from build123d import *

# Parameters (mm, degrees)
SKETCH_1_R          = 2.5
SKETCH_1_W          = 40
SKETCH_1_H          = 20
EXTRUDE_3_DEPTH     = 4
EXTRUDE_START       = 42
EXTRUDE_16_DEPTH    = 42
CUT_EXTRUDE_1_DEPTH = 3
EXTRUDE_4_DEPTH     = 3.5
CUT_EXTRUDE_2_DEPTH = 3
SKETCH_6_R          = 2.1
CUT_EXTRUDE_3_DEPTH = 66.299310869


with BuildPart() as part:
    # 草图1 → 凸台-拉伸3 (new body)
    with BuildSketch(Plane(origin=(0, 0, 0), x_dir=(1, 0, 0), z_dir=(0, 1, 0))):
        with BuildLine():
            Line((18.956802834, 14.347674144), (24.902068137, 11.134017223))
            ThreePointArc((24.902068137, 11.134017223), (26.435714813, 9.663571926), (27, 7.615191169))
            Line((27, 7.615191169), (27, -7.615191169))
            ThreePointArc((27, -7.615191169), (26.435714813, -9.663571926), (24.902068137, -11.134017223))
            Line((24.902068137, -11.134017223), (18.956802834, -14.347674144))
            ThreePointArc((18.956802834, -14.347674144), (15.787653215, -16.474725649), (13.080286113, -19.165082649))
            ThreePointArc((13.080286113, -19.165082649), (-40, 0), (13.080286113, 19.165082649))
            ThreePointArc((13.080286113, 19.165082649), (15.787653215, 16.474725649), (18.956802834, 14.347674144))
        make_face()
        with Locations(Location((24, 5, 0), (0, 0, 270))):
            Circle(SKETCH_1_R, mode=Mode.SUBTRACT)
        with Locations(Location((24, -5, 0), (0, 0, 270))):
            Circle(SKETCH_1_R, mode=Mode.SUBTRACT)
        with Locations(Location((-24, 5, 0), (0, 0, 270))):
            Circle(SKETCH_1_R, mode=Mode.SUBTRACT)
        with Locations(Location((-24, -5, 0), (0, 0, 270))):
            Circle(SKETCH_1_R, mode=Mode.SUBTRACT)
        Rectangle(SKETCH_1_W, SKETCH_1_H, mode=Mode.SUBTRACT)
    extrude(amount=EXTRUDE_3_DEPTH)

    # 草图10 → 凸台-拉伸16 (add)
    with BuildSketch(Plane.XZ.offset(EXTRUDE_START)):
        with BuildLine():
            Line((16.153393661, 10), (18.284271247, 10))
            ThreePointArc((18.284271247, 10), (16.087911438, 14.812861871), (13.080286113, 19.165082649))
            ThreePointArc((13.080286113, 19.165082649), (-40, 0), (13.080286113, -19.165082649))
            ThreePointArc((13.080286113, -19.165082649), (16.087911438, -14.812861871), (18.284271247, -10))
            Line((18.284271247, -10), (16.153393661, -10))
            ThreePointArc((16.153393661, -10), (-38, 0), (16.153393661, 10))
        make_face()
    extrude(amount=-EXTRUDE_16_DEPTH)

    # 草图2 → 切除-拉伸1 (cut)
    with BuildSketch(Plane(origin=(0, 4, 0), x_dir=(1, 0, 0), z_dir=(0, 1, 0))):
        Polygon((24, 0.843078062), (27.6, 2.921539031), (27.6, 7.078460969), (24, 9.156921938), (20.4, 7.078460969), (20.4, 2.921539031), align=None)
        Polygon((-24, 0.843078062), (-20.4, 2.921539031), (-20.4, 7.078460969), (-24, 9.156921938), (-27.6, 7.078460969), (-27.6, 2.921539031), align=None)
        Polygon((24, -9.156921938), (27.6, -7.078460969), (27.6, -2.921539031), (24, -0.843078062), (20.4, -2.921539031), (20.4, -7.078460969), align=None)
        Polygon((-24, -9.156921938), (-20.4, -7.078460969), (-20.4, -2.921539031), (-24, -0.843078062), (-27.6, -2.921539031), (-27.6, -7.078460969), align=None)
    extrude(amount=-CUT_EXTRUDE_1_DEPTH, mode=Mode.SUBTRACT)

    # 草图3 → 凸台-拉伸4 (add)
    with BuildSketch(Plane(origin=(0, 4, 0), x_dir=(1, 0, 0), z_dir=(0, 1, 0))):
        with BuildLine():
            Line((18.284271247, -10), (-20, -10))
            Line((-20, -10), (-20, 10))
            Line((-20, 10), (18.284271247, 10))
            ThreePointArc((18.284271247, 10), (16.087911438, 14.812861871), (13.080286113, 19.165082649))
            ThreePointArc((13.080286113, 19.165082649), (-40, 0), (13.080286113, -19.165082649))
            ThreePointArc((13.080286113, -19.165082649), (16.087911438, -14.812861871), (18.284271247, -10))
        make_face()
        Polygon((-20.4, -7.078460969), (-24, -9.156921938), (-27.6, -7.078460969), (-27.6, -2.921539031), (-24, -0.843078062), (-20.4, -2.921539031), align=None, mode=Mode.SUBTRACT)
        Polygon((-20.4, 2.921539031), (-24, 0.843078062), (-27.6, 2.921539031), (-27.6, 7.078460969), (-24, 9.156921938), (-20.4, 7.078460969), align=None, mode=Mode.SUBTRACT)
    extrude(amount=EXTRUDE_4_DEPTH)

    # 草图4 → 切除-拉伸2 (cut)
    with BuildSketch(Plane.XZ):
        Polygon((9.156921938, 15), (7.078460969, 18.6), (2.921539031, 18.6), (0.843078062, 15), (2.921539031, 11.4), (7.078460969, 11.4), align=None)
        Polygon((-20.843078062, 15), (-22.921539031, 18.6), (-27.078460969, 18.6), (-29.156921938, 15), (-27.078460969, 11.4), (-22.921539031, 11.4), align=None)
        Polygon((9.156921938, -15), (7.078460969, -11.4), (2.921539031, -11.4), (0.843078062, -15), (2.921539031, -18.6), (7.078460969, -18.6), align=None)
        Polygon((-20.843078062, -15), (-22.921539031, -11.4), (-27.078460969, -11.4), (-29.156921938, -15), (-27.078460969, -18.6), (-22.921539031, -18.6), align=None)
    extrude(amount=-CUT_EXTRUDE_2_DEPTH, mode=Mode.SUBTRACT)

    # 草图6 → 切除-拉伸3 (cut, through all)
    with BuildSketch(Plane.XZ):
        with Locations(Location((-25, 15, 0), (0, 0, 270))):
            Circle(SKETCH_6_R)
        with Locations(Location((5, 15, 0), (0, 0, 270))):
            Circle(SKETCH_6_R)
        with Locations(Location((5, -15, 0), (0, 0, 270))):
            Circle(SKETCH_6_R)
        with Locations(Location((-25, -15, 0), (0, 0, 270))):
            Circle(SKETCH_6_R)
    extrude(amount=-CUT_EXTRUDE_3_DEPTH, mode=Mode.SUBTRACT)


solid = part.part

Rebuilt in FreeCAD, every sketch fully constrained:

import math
import FreeCAD as App
import Part
import Sketcher

V = App.Vector
Q = App.Units.Quantity


def add_polygon(sketch, points):
    """Adds a closed chain of lines whose ends are joined by coincident constraints."""
    first, n = sketch.GeometryCount, len(points)
    for a, b in zip(points, points[1:] + points[:1]):
        sketch.addGeometry(Part.LineSegment(App.Vector(*a, 0), App.Vector(*b, 0)), False)
    for i in range(n):
        sketch.addConstraint(Sketcher.Constraint("Coincident", first + i, 2, first + (i + 1) % n, 1))

doc = App.newDocument("Part")
params = doc.addObject("Spreadsheet::Sheet", "Params")
for row, (alias, value) in enumerate([
    ("sketch1_diameter", "5 mm"),
    ("sketch1_radius", "20 mm"),
    ("sketch1_radius2", "30 mm"),
    ("sketch1_radius3", "4 mm"),
    ("sketch1_width", "40 mm"),
    ("pad1_length", "4 mm"),
    ("sketch2_radius", "30 mm"),
    ("sketch2_radius2", "28 mm"),
    ("pad2_length", "42 mm"),
    ("pocket1_length", "3 mm"),
    ("sketch4_radius", "30 mm"),
    ("sketch4_height", "20 mm"),
    ("pad3_length", "3.5 mm"),
    ("pocket2_length", "3 mm"),
    ("sketch6_diameter", "4.2 mm"),
], start=1):
    params.set(f"A{row}", alias)
    params.set(f"B{row}", "=" + value)
    params.setAlias(f"B{row}", alias)

body = doc.addObject("PartDesign::Body", "Body")

# Sketch on XZ plane
sketch1 = body.newObject("Sketcher::SketchObject", "Sketch")
sketch1.AttachmentSupport = (doc.getObject("XZ_Plane"), [""])
sketch1.MapMode = "FlatFace"
sketch1.addGeometry(Part.LineSegment(V(24.9, -11.1, 0), V(19, -14.3, 0)), False)  # 0
sketch1.addGeometry(Part.ArcOfCircle(Part.Circle(V(28.5, -31.9, 0), V(0, 0, 1), 20), math.radians(118), math.radians(140)), False)  # 1
sketch1.addGeometry(Part.ArcOfCircle(Part.Circle(V(-10, 0, 0), V(0, 0, 1), 30), math.radians(40), math.radians(320)), False)  # 2
sketch1.addGeometry(Part.ArcOfCircle(Part.Circle(V(28.5, 31.9, 0), V(0, 0, 1), 20), math.radians(-140), math.radians(-118)), False)  # 3
sketch1.addGeometry(Part.LineSegment(V(19, 14.3, 0), V(24.9, 11.1, 0)), False)  # 4
sketch1.addGeometry(Part.ArcOfCircle(Part.Circle(V(23, 7.6, 0), V(0, 0, 1), 4), math.radians(0), math.radians(62)), False)  # 5
sketch1.addGeometry(Part.LineSegment(V(27, 7.6, 0), V(27, -7.6, 0)), False)  # 6
sketch1.addGeometry(Part.ArcOfCircle(Part.Circle(V(23, -7.6, 0), V(0, 0, 1), 4), math.radians(-62), math.radians(0)), False)  # 7
sketch1.addGeometry(Part.Circle(V(24, 5, 0), V(0, 0, 1), 2.5), False)  # 8
sketch1.addGeometry(Part.Circle(V(-24, 5, 0), V(0, 0, 1), 2.5), False)  # 9
sketch1.addGeometry(Part.Circle(V(24, -5, 0), V(0, 0, 1), 2.5), False)  # 10
add_polygon(sketch1, [(-20, 10), (-20, -10), (20, -10), (20, 10)])  # lines 11-14
sketch1.addGeometry(Part.Circle(V(-24, -5, 0), V(0, 0, 1), 2.5), False)  # 15
sketch1.addConstraint(Sketcher.Constraint("Tangent", 0, 2, 1, 1))
sketch1.addConstraint(Sketcher.Constraint("Tangent", 1, 2, 2, 2))
sketch1.addConstraint(Sketcher.Constraint("Tangent", 2, 1, 3, 1))
sketch1.addConstraint(Sketcher.Constraint("Tangent", 3, 2, 4, 1))
sketch1.addConstraint(Sketcher.Constraint("Tangent", 4, 2, 5, 2))
sketch1.addConstraint(Sketcher.Constraint("Tangent", 5, 1, 6, 1))
sketch1.addConstraint(Sketcher.Constraint("Tangent", 6, 2, 7, 2))
sketch1.addConstraint(Sketcher.Constraint("Tangent", 7, 1, 0, 1))
sketch1.addConstraint(Sketcher.Constraint("Vertical", 6))
sketch1.addConstraint(Sketcher.Constraint("Vertical", 11))
sketch1.addConstraint(Sketcher.Constraint("Horizontal", 12))
sketch1.addConstraint(Sketcher.Constraint("Vertical", 13))
sketch1.addConstraint(Sketcher.Constraint("Horizontal", 14))
sketch1.addConstraint(Sketcher.Constraint("Equal", 1, 3))
sketch1.addConstraint(Sketcher.Constraint("Equal", 5, 7))
sketch1.addConstraint(Sketcher.Constraint("Equal", 8, 9))
sketch1.addConstraint(Sketcher.Constraint("Equal", 9, 10))
sketch1.addConstraint(Sketcher.Constraint("Equal", 10, 15))
sketch1.addConstraint(Sketcher.Constraint("Symmetric", 9, 3, 10, 3, -1, 1))
sketch1.addConstraint(Sketcher.Constraint("Symmetric", 8, 3, 15, 3, -1, 1))
sketch1.addConstraint(Sketcher.Constraint("Symmetric", 11, 2, 13, 2, -1, 1))
sketch1.addConstraint(Sketcher.Constraint("Symmetric", 8, 3, 9, 3, -2))
sketch1.addConstraint(Sketcher.Constraint("Symmetric", 1, 3, 3, 3, -1))
sketch1.addConstraint(Sketcher.Constraint("Vertical", 0, 2, 3, 2))
sketch1.addConstraint(Sketcher.Constraint("Diameter", 8, 5.0))
sketch1.addConstraint(Sketcher.Constraint("Radius", 1, 20.0))
sketch1.addConstraint(Sketcher.Constraint("Radius", 2, 30.0))
sketch1.addConstraint(Sketcher.Constraint("Radius", 5, 4.0))
sketch1.addConstraint(Sketcher.Constraint("DistanceX", 12, 1, 12, 2, 40.0))
sketch1.addConstraint(Sketcher.Constraint("DistanceY", 11, 2, 11, 1, 20.0))
sketch1.addConstraint(Sketcher.Constraint("DistanceX", 2, 3, -1, 1, 10.0))
sketch1.addConstraint(Sketcher.Constraint("DistanceX", -1, 1, 5, 3, 23.0))
sketch1.addConstraint(Sketcher.Constraint("DistanceX", -1, 1, 8, 3, 24.0))
sketch1.addConstraint(Sketcher.Constraint("DistanceY", -1, 1, 8, 3, 5.0))
sketch1.addConstraint(Sketcher.Constraint("DistanceY", 6, 2, 6, 1, 15.230382))
sketch1.addConstraint(Sketcher.Constraint("DistanceX", -1, 1, 4, 2, 24.902068))
sketch1.setExpression("Constraints[28]", "Params.sketch1_diameter")
sketch1.setExpression("Constraints[29]", "Params.sketch1_radius")
sketch1.setExpression("Constraints[30]", "Params.sketch1_radius2")
sketch1.setExpression("Constraints[31]", "Params.sketch1_radius3")
sketch1.setExpression("Constraints[32]", "Params.sketch1_width")
pad1 = body.newObject("PartDesign::Pad", "Pad")
pad1.Profile = sketch1
pad1.setExpression("Length", "Params.pad1_length")
pad1.Reversed = True

# Sketch on XZ plane
sketch2 = body.newObject("Sketcher::SketchObject", "Sketch001")
sketch2.AttachmentSupport = (doc.getObject("XZ_Plane"), [""])
sketch2.MapMode = "FlatFace"
sketch2.AttachmentOffset = App.Placement(V(0, 0, 42), App.Rotation())
sketch2.addGeometry(Part.LineSegment(V(16.2, 10, 0), V(18.3, 10, 0)), False)
sketch2.addGeometry(Part.ArcOfCircle(Part.Circle(V(-10, 0, 0), V(0, 0, 1), 30), math.radians(19), math.radians(40)), False)
sketch2.addGeometry(Part.ArcOfCircle(Part.Circle(V(-10, 0, 0), V(0, 0, 1), 30), math.radians(40), math.radians(320)), False)
sketch2.addGeometry(Part.ArcOfCircle(Part.Circle(V(-10, 0, 0), V(0, 0, 1), 30), math.radians(-40), math.radians(-19)), False)
sketch2.addGeometry(Part.LineSegment(V(18.3, -10, 0), V(16.2, -10, 0)), False)
sketch2.addGeometry(Part.ArcOfCircle(Part.Circle(V(-10, 0, 0), V(0, 0, 1), 28), math.radians(21), math.radians(339)), False)
sketch2.addConstraint(Sketcher.Constraint("Coincident", 0, 2, 1, 1))
sketch2.addConstraint(Sketcher.Constraint("Tangent", 1, 2, 2, 1))
sketch2.addConstraint(Sketcher.Constraint("Tangent", 2, 2, 3, 1))
sketch2.addConstraint(Sketcher.Constraint("Coincident", 3, 2, 4, 1))
sketch2.addConstraint(Sketcher.Constraint("Coincident", 4, 2, 5, 2))
sketch2.addConstraint(Sketcher.Constraint("Coincident", 5, 1, 0, 1))
sketch2.addConstraint(Sketcher.Constraint("Horizontal", 0))
sketch2.addConstraint(Sketcher.Constraint("Horizontal", 4))
sketch2.addConstraint(Sketcher.Constraint("Coincident", 3, 3, 1, 3))
sketch2.addConstraint(Sketcher.Constraint("Coincident", 5, 3, 1, 3))
sketch2.addConstraint(Sketcher.Constraint("Symmetric", 1, 2, 2, 2, -1))
sketch2.addConstraint(Sketcher.Constraint("Vertical", 0, 2, 3, 2))
sketch2.addConstraint(Sketcher.Constraint("Radius", 1, 30.0))
sketch2.addConstraint(Sketcher.Constraint("Radius", 5, 28.0))
sketch2.addConstraint(Sketcher.Constraint("DistanceX", 1, 3, -1, 1, 10.0))
sketch2.addConstraint(Sketcher.Constraint("DistanceY", -1, 1, 0, 2, 10.0))
sketch2.addConstraint(Sketcher.Constraint("DistanceX", -1, 1, 1, 2, 13.080286))
sketch2.setExpression("Constraints[12]", "Params.sketch2_radius")
sketch2.setExpression("Constraints[13]", "Params.sketch2_radius2")
pad2 = body.newObject("PartDesign::Pad", "Pad001")
pad2.Profile = sketch2
pad2.setExpression("Length", "Params.pad2_length")
pad2.Reversed = True

# Sketch on XZ plane
sketch3 = body.newObject("Sketcher::SketchObject", "Sketch002")
sketch3.AttachmentSupport = (doc.getObject("XZ_Plane"), [""])
sketch3.MapMode = "FlatFace"
sketch3.AttachmentOffset = App.Placement(V(0, 0, -4), App.Rotation())
add_polygon(sketch3, [(24, -0.8), (27.6, -2.9), (27.6, -7.1), (24, -9.2), (20.4, -7.1), (20.4, -2.9)])  # lines 0-5
add_polygon(sketch3, [(-24, -0.8), (-20.4, -2.9), (-20.4, -7.1), (-24, -9.2), (-27.6, -7.1), (-27.6, -2.9)])  # lines 6-11
add_polygon(sketch3, [(24, 9.2), (27.6, 7.1), (27.6, 2.9), (24, 0.8), (20.4, 2.9), (20.4, 7.1)])  # lines 12-17
add_polygon(sketch3, [(-24, 9.2), (-20.4, 7.1), (-20.4, 2.9), (-24, 0.8), (-27.6, 2.9), (-27.6, 7.1)])  # lines 18-23
sketch3.addConstraint(Sketcher.Constraint("Vertical", 1))
sketch3.addConstraint(Sketcher.Constraint("Vertical", 4))
sketch3.addConstraint(Sketcher.Constraint("Vertical", 7))
sketch3.addConstraint(Sketcher.Constraint("Vertical", 10))
sketch3.addConstraint(Sketcher.Constraint("Vertical", 13))
sketch3.addConstraint(Sketcher.Constraint("Vertical", 16))
sketch3.addConstraint(Sketcher.Constraint("Vertical", 19))
sketch3.addConstraint(Sketcher.Constraint("Vertical", 22))
sketch3.addConstraint(Sketcher.Constraint("Symmetric", 9, 2, 12, 2, -1, 1))
sketch3.addConstraint(Sketcher.Constraint("Symmetric", 11, 2, 14, 2, -1, 1))
sketch3.addConstraint(Sketcher.Constraint("Symmetric", 6, 2, 15, 2, -1, 1))
sketch3.addConstraint(Sketcher.Constraint("Symmetric", 8, 2, 17, 2, -1, 1))
sketch3.addConstraint(Sketcher.Constraint("Symmetric", 3, 2, 18, 2, -1, 1))
sketch3.addConstraint(Sketcher.Constraint("Symmetric", 5, 2, 20, 2, -1, 1))
sketch3.addConstraint(Sketcher.Constraint("Symmetric", 0, 2, 21, 2, -1, 1))
sketch3.addConstraint(Sketcher.Constraint("Symmetric", 2, 2, 23, 2, -1, 1))
sketch3.addConstraint(Sketcher.Constraint("Symmetric", 4, 2, 6, 2, -2))
sketch3.addConstraint(Sketcher.Constraint("Symmetric", 2, 2, 8, 2, -2))
sketch3.addConstraint(Sketcher.Constraint("Symmetric", 1, 2, 9, 2, -2))
sketch3.addConstraint(Sketcher.Constraint("Symmetric", 5, 2, 11, 2, -2))
sketch3.addConstraint(Sketcher.Constraint("Parallel", 0, 3))
sketch3.addConstraint(Sketcher.Constraint("Parallel", 2, 5))
sketch3.addConstraint(Sketcher.Constraint("Parallel", 3, 6))
sketch3.addConstraint(Sketcher.Constraint("Parallel", 5, 8))
sketch3.addConstraint(Sketcher.Constraint("Parallel", 8, 11))
sketch3.addConstraint(Sketcher.Constraint("Parallel", 11, 14))
sketch3.addConstraint(Sketcher.Constraint("Parallel", 14, 17))
sketch3.addConstraint(Sketcher.Constraint("Parallel", 17, 20))
sketch3.addConstraint(Sketcher.Constraint("Parallel", 20, 23))
sketch3.addConstraint(Sketcher.Constraint("Horizontal", 1, 2, 3, 2))
sketch3.addConstraint(Sketcher.Constraint("Horizontal", 0, 2, 4, 2))
sketch3.addConstraint(Sketcher.Constraint("Angle", 0, Q("-30 deg")))
sketch3.addConstraint(Sketcher.Constraint("DistanceX", -1, 1, 2, 2, 24.0))
sketch3.addConstraint(Sketcher.Constraint("DistanceY", 0, 2, 12, 2, 10.0))
sketch3.addConstraint(Sketcher.Constraint("DistanceX", -1, 1, 0, 2, 27.6))
sketch3.addConstraint(Sketcher.Constraint("DistanceY", 1, 2, 1, 1, 4.156922))
pocket1 = body.newObject("PartDesign::Pocket", "Pocket")
pocket1.Profile = sketch3
pocket1.setExpression("Length", "Params.pocket1_length")
pocket1.Reversed = True

# Sketch on XZ plane
sketch4 = body.newObject("Sketcher::SketchObject", "Sketch003")
sketch4.AttachmentSupport = (doc.getObject("XZ_Plane"), [""])
sketch4.MapMode = "FlatFace"
sketch4.AttachmentOffset = App.Placement(V(0, 0, -4), App.Rotation())
sketch4.addGeometry(Part.LineSegment(V(18.3, 10, 0), V(-20, 10, 0)), False)  # 0
sketch4.addGeometry(Part.LineSegment(V(-20, 10, 0), V(-20, -10, 0)), False)  # 1
sketch4.addGeometry(Part.LineSegment(V(-20, -10, 0), V(18.3, -10, 0)), False)  # 2
sketch4.addGeometry(Part.ArcOfCircle(Part.Circle(V(-10, 0, 0), V(0, 0, 1), 30), math.radians(-40), math.radians(-19)), False)  # 3
sketch4.addGeometry(Part.ArcOfCircle(Part.Circle(V(-10, 0, 0), V(0, 0, 1), 30), math.radians(40), math.radians(320)), False)  # 4
sketch4.addGeometry(Part.ArcOfCircle(Part.Circle(V(-10, 0, 0), V(0, 0, 1), 30), math.radians(19), math.radians(40)), False)  # 5
add_polygon(sketch4, [(-20.4, 2.9), (-20.4, 7.1), (-24, 9.2), (-27.6, 7.1), (-27.6, 2.9), (-24, 0.8)])  # lines 6-11
add_polygon(sketch4, [(-20.4, -7.1), (-20.4, -2.9), (-24, -0.8), (-27.6, -2.9), (-27.6, -7.1), (-24, -9.2)])  # lines 12-17
sketch4.addConstraint(Sketcher.Constraint("Coincident", 0, 2, 1, 1))
sketch4.addConstraint(Sketcher.Constraint("Coincident", 1, 2, 2, 1))
sketch4.addConstraint(Sketcher.Constraint("Coincident", 2, 2, 3, 2))
sketch4.addConstraint(Sketcher.Constraint("Tangent", 3, 1, 4, 2))
sketch4.addConstraint(Sketcher.Constraint("Tangent", 4, 1, 5, 2))
sketch4.addConstraint(Sketcher.Constraint("Coincident", 5, 1, 0, 1))
sketch4.addConstraint(Sketcher.Constraint("Horizontal", 0))
sketch4.addConstraint(Sketcher.Constraint("Vertical", 1))
sketch4.addConstraint(Sketcher.Constraint("Horizontal", 2))
sketch4.addConstraint(Sketcher.Constraint("Vertical", 6))
sketch4.addConstraint(Sketcher.Constraint("Vertical", 9))
sketch4.addConstraint(Sketcher.Constraint("Vertical", 12))
sketch4.addConstraint(Sketcher.Constraint("Vertical", 15))
sketch4.addConstraint(Sketcher.Constraint("Coincident", 5, 3, 3, 3))
sketch4.addConstraint(Sketcher.Constraint("Symmetric", 3, 1, 4, 1, -1))
sketch4.addConstraint(Sketcher.Constraint("Symmetric", 11, 2, 12, 2, -1))
sketch4.addConstraint(Sketcher.Constraint("Symmetric", 10, 2, 13, 2, -1))
sketch4.addConstraint(Sketcher.Constraint("Symmetric", 9, 2, 14, 2, -1))
sketch4.addConstraint(Sketcher.Constraint("Symmetric", 7, 2, 16, 2, -1))
sketch4.addConstraint(Sketcher.Constraint("Parallel", 7, 10))
sketch4.addConstraint(Sketcher.Constraint("Parallel", 8, 11))
sketch4.addConstraint(Sketcher.Constraint("Parallel", 10, 13))
sketch4.addConstraint(Sketcher.Constraint("Parallel", 13, 16))
sketch4.addConstraint(Sketcher.Constraint("Parallel", 14, 17))
sketch4.addConstraint(Sketcher.Constraint("Horizontal", 6, 2, 8, 2))
sketch4.addConstraint(Sketcher.Constraint("Horizontal", 9, 2, 11, 2))
sketch4.addConstraint(Sketcher.Constraint("Vertical", 2, 2, 5, 1))
sketch4.addConstraint(Sketcher.Constraint("Radius", 3, 30.0))
sketch4.addConstraint(Sketcher.Constraint("DistanceY", 1, 2, 1, 1, 20.0))
sketch4.addConstraint(Sketcher.Constraint("Angle", 7, Q("150 deg")))
sketch4.addConstraint(Sketcher.Constraint("DistanceX", 3, 3, -1, 1, 10.0))
sketch4.addConstraint(Sketcher.Constraint("DistanceX", 0, 2, -1, 1, 20.0))
sketch4.addConstraint(Sketcher.Constraint("DistanceX", 7, 2, -1, 1, 24.0))
sketch4.addConstraint(Sketcher.Constraint("DistanceY", 12, 2, 6, 2, 10.0))
sketch4.addConstraint(Sketcher.Constraint("DistanceX", 6, 2, -1, 1, 20.4))
sketch4.addConstraint(Sketcher.Constraint("DistanceY", 6, 1, 6, 2, 4.156922))
sketch4.addConstraint(Sketcher.Constraint("DistanceX", -1, 1, 3, 1, 13.080286))
sketch4.setExpression("Constraints[39]", "Params.sketch4_radius")
sketch4.setExpression("Constraints[40]", "Params.sketch4_height")
pad3 = body.newObject("PartDesign::Pad", "Pad002")
pad3.Profile = sketch4
pad3.setExpression("Length", "Params.pad3_length")
pad3.Reversed = True

# Sketch on XZ plane
sketch5 = body.newObject("Sketcher::SketchObject", "Sketch004")
sketch5.AttachmentSupport = (doc.getObject("XZ_Plane"), [""])
sketch5.MapMode = "FlatFace"
add_polygon(sketch5, [(9.2, 15), (7.1, 18.6), (2.9, 18.6), (0.8, 15), (2.9, 11.4), (7.1, 11.4)])  # lines 0-5
add_polygon(sketch5, [(-20.8, 15), (-22.9, 18.6), (-27.1, 18.6), (-29.2, 15), (-27.1, 11.4), (-22.9, 11.4)])  # lines 6-11
add_polygon(sketch5, [(9.2, -15), (7.1, -11.4), (2.9, -11.4), (0.8, -15), (2.9, -18.6), (7.1, -18.6)])  # lines 12-17
add_polygon(sketch5, [(-20.8, -15), (-22.9, -11.4), (-27.1, -11.4), (-29.2, -15), (-27.1, -18.6), (-22.9, -18.6)])  # lines 18-23
sketch5.addConstraint(Sketcher.Constraint("Horizontal", 1))
sketch5.addConstraint(Sketcher.Constraint("Horizontal", 4))
sketch5.addConstraint(Sketcher.Constraint("Horizontal", 7))
sketch5.addConstraint(Sketcher.Constraint("Horizontal", 10))
sketch5.addConstraint(Sketcher.Constraint("Horizontal", 13))
sketch5.addConstraint(Sketcher.Constraint("Horizontal", 16))
sketch5.addConstraint(Sketcher.Constraint("Horizontal", 19))
sketch5.addConstraint(Sketcher.Constraint("Horizontal", 22))
sketch5.addConstraint(Sketcher.Constraint("Symmetric", 4, 2, 12, 2, -1))
sketch5.addConstraint(Sketcher.Constraint("Symmetric", 2, 2, 14, 2, -1))
sketch5.addConstraint(Sketcher.Constraint("Symmetric", 1, 2, 15, 2, -1))
sketch5.addConstraint(Sketcher.Constraint("Symmetric", 5, 2, 17, 2, -1))
sketch5.addConstraint(Sketcher.Constraint("Symmetric", 10, 2, 18, 2, -1))
sketch5.addConstraint(Sketcher.Constraint("Symmetric", 8, 2, 20, 2, -1))
sketch5.addConstraint(Sketcher.Constraint("Symmetric", 7, 2, 21, 2, -1))
sketch5.addConstraint(Sketcher.Constraint("Symmetric", 11, 2, 23, 2, -1))
sketch5.addConstraint(Sketcher.Constraint("Parallel", 0, 3))
sketch5.addConstraint(Sketcher.Constraint("Parallel", 2, 5))
sketch5.addConstraint(Sketcher.Constraint("Parallel", 3, 6))
sketch5.addConstraint(Sketcher.Constraint("Parallel", 5, 8))
sketch5.addConstraint(Sketcher.Constraint("Parallel", 6, 9))
sketch5.addConstraint(Sketcher.Constraint("Parallel", 8, 11))
sketch5.addConstraint(Sketcher.Constraint("Parallel", 9, 12))
sketch5.addConstraint(Sketcher.Constraint("Parallel", 11, 14))
sketch5.addConstraint(Sketcher.Constraint("Parallel", 14, 17))
sketch5.addConstraint(Sketcher.Constraint("Parallel", 17, 20))
sketch5.addConstraint(Sketcher.Constraint("Parallel", 20, 23))
sketch5.addConstraint(Sketcher.Constraint("Horizontal", 2, 2, 5, 2))
sketch5.addConstraint(Sketcher.Constraint("Horizontal", 1, 2, 6, 2))
sketch5.addConstraint(Sketcher.Constraint("Horizontal", 5, 2, 8, 2))
sketch5.addConstraint(Sketcher.Constraint("Horizontal", 4, 2, 9, 2))
sketch5.addConstraint(Sketcher.Constraint("Horizontal", 8, 2, 11, 2))
sketch5.addConstraint(Sketcher.Constraint("Vertical", 1, 2, 3, 2))
sketch5.addConstraint(Sketcher.Constraint("Equal", 4, 7))
sketch5.addConstraint(Sketcher.Constraint("Angle", 0, Q("120 deg")))
sketch5.addConstraint(Sketcher.Constraint("DistanceY", -1, 1, 2, 2, 15.0))
sketch5.addConstraint(Sketcher.Constraint("DistanceX", 6, 2, 0, 2, 30.0))
sketch5.addConstraint(Sketcher.Constraint("DistanceY", -1, 1, 0, 2, 18.6))
sketch5.addConstraint(Sketcher.Constraint("DistanceX", 1, 2, 1, 1, 4.156922))
sketch5.addConstraint(Sketcher.Constraint("DistanceX", -1, 1, 0, 2, 7.078461))
pocket2 = body.newObject("PartDesign::Pocket", "Pocket001")
pocket2.Profile = sketch5
pocket2.setExpression("Length", "Params.pocket2_length")

# Sketch on XZ plane
sketch6 = body.newObject("Sketcher::SketchObject", "Sketch005")
sketch6.AttachmentSupport = (doc.getObject("XZ_Plane"), [""])
sketch6.MapMode = "FlatFace"
sketch6.addGeometry(Part.Circle(V(-25, 15, 0), V(0, 0, 1), 2.1), False)
sketch6.addGeometry(Part.Circle(V(5, 15, 0), V(0, 0, 1), 2.1), False)
sketch6.addGeometry(Part.Circle(V(5, -15, 0), V(0, 0, 1), 2.1), False)
sketch6.addGeometry(Part.Circle(V(-25, -15, 0), V(0, 0, 1), 2.1), False)
sketch6.addConstraint(Sketcher.Constraint("Equal", 0, 1))
sketch6.addConstraint(Sketcher.Constraint("Equal", 1, 2))
sketch6.addConstraint(Sketcher.Constraint("Equal", 2, 3))
sketch6.addConstraint(Sketcher.Constraint("Symmetric", 1, 3, 2, 3, -1))
sketch6.addConstraint(Sketcher.Constraint("Symmetric", 0, 3, 3, 3, -1))
sketch6.addConstraint(Sketcher.Constraint("Horizontal", 0, 3, 1, 3))
sketch6.addConstraint(Sketcher.Constraint("Diameter", 0, 4.2))
sketch6.addConstraint(Sketcher.Constraint("DistanceX", 0, 3, -1, 1, 25.0))
sketch6.addConstraint(Sketcher.Constraint("DistanceY", -1, 1, 0, 3, 15.0))
sketch6.addConstraint(Sketcher.Constraint("DistanceX", -1, 1, 1, 3, 5.0))
sketch6.setExpression("Constraints[6]", "Params.sketch6_diameter")
pocket3 = body.newObject("PartDesign::Pocket", "Pocket002")
pocket3.Profile = sketch6
pocket3.Type = "ThroughAll"

doc.recompute()
